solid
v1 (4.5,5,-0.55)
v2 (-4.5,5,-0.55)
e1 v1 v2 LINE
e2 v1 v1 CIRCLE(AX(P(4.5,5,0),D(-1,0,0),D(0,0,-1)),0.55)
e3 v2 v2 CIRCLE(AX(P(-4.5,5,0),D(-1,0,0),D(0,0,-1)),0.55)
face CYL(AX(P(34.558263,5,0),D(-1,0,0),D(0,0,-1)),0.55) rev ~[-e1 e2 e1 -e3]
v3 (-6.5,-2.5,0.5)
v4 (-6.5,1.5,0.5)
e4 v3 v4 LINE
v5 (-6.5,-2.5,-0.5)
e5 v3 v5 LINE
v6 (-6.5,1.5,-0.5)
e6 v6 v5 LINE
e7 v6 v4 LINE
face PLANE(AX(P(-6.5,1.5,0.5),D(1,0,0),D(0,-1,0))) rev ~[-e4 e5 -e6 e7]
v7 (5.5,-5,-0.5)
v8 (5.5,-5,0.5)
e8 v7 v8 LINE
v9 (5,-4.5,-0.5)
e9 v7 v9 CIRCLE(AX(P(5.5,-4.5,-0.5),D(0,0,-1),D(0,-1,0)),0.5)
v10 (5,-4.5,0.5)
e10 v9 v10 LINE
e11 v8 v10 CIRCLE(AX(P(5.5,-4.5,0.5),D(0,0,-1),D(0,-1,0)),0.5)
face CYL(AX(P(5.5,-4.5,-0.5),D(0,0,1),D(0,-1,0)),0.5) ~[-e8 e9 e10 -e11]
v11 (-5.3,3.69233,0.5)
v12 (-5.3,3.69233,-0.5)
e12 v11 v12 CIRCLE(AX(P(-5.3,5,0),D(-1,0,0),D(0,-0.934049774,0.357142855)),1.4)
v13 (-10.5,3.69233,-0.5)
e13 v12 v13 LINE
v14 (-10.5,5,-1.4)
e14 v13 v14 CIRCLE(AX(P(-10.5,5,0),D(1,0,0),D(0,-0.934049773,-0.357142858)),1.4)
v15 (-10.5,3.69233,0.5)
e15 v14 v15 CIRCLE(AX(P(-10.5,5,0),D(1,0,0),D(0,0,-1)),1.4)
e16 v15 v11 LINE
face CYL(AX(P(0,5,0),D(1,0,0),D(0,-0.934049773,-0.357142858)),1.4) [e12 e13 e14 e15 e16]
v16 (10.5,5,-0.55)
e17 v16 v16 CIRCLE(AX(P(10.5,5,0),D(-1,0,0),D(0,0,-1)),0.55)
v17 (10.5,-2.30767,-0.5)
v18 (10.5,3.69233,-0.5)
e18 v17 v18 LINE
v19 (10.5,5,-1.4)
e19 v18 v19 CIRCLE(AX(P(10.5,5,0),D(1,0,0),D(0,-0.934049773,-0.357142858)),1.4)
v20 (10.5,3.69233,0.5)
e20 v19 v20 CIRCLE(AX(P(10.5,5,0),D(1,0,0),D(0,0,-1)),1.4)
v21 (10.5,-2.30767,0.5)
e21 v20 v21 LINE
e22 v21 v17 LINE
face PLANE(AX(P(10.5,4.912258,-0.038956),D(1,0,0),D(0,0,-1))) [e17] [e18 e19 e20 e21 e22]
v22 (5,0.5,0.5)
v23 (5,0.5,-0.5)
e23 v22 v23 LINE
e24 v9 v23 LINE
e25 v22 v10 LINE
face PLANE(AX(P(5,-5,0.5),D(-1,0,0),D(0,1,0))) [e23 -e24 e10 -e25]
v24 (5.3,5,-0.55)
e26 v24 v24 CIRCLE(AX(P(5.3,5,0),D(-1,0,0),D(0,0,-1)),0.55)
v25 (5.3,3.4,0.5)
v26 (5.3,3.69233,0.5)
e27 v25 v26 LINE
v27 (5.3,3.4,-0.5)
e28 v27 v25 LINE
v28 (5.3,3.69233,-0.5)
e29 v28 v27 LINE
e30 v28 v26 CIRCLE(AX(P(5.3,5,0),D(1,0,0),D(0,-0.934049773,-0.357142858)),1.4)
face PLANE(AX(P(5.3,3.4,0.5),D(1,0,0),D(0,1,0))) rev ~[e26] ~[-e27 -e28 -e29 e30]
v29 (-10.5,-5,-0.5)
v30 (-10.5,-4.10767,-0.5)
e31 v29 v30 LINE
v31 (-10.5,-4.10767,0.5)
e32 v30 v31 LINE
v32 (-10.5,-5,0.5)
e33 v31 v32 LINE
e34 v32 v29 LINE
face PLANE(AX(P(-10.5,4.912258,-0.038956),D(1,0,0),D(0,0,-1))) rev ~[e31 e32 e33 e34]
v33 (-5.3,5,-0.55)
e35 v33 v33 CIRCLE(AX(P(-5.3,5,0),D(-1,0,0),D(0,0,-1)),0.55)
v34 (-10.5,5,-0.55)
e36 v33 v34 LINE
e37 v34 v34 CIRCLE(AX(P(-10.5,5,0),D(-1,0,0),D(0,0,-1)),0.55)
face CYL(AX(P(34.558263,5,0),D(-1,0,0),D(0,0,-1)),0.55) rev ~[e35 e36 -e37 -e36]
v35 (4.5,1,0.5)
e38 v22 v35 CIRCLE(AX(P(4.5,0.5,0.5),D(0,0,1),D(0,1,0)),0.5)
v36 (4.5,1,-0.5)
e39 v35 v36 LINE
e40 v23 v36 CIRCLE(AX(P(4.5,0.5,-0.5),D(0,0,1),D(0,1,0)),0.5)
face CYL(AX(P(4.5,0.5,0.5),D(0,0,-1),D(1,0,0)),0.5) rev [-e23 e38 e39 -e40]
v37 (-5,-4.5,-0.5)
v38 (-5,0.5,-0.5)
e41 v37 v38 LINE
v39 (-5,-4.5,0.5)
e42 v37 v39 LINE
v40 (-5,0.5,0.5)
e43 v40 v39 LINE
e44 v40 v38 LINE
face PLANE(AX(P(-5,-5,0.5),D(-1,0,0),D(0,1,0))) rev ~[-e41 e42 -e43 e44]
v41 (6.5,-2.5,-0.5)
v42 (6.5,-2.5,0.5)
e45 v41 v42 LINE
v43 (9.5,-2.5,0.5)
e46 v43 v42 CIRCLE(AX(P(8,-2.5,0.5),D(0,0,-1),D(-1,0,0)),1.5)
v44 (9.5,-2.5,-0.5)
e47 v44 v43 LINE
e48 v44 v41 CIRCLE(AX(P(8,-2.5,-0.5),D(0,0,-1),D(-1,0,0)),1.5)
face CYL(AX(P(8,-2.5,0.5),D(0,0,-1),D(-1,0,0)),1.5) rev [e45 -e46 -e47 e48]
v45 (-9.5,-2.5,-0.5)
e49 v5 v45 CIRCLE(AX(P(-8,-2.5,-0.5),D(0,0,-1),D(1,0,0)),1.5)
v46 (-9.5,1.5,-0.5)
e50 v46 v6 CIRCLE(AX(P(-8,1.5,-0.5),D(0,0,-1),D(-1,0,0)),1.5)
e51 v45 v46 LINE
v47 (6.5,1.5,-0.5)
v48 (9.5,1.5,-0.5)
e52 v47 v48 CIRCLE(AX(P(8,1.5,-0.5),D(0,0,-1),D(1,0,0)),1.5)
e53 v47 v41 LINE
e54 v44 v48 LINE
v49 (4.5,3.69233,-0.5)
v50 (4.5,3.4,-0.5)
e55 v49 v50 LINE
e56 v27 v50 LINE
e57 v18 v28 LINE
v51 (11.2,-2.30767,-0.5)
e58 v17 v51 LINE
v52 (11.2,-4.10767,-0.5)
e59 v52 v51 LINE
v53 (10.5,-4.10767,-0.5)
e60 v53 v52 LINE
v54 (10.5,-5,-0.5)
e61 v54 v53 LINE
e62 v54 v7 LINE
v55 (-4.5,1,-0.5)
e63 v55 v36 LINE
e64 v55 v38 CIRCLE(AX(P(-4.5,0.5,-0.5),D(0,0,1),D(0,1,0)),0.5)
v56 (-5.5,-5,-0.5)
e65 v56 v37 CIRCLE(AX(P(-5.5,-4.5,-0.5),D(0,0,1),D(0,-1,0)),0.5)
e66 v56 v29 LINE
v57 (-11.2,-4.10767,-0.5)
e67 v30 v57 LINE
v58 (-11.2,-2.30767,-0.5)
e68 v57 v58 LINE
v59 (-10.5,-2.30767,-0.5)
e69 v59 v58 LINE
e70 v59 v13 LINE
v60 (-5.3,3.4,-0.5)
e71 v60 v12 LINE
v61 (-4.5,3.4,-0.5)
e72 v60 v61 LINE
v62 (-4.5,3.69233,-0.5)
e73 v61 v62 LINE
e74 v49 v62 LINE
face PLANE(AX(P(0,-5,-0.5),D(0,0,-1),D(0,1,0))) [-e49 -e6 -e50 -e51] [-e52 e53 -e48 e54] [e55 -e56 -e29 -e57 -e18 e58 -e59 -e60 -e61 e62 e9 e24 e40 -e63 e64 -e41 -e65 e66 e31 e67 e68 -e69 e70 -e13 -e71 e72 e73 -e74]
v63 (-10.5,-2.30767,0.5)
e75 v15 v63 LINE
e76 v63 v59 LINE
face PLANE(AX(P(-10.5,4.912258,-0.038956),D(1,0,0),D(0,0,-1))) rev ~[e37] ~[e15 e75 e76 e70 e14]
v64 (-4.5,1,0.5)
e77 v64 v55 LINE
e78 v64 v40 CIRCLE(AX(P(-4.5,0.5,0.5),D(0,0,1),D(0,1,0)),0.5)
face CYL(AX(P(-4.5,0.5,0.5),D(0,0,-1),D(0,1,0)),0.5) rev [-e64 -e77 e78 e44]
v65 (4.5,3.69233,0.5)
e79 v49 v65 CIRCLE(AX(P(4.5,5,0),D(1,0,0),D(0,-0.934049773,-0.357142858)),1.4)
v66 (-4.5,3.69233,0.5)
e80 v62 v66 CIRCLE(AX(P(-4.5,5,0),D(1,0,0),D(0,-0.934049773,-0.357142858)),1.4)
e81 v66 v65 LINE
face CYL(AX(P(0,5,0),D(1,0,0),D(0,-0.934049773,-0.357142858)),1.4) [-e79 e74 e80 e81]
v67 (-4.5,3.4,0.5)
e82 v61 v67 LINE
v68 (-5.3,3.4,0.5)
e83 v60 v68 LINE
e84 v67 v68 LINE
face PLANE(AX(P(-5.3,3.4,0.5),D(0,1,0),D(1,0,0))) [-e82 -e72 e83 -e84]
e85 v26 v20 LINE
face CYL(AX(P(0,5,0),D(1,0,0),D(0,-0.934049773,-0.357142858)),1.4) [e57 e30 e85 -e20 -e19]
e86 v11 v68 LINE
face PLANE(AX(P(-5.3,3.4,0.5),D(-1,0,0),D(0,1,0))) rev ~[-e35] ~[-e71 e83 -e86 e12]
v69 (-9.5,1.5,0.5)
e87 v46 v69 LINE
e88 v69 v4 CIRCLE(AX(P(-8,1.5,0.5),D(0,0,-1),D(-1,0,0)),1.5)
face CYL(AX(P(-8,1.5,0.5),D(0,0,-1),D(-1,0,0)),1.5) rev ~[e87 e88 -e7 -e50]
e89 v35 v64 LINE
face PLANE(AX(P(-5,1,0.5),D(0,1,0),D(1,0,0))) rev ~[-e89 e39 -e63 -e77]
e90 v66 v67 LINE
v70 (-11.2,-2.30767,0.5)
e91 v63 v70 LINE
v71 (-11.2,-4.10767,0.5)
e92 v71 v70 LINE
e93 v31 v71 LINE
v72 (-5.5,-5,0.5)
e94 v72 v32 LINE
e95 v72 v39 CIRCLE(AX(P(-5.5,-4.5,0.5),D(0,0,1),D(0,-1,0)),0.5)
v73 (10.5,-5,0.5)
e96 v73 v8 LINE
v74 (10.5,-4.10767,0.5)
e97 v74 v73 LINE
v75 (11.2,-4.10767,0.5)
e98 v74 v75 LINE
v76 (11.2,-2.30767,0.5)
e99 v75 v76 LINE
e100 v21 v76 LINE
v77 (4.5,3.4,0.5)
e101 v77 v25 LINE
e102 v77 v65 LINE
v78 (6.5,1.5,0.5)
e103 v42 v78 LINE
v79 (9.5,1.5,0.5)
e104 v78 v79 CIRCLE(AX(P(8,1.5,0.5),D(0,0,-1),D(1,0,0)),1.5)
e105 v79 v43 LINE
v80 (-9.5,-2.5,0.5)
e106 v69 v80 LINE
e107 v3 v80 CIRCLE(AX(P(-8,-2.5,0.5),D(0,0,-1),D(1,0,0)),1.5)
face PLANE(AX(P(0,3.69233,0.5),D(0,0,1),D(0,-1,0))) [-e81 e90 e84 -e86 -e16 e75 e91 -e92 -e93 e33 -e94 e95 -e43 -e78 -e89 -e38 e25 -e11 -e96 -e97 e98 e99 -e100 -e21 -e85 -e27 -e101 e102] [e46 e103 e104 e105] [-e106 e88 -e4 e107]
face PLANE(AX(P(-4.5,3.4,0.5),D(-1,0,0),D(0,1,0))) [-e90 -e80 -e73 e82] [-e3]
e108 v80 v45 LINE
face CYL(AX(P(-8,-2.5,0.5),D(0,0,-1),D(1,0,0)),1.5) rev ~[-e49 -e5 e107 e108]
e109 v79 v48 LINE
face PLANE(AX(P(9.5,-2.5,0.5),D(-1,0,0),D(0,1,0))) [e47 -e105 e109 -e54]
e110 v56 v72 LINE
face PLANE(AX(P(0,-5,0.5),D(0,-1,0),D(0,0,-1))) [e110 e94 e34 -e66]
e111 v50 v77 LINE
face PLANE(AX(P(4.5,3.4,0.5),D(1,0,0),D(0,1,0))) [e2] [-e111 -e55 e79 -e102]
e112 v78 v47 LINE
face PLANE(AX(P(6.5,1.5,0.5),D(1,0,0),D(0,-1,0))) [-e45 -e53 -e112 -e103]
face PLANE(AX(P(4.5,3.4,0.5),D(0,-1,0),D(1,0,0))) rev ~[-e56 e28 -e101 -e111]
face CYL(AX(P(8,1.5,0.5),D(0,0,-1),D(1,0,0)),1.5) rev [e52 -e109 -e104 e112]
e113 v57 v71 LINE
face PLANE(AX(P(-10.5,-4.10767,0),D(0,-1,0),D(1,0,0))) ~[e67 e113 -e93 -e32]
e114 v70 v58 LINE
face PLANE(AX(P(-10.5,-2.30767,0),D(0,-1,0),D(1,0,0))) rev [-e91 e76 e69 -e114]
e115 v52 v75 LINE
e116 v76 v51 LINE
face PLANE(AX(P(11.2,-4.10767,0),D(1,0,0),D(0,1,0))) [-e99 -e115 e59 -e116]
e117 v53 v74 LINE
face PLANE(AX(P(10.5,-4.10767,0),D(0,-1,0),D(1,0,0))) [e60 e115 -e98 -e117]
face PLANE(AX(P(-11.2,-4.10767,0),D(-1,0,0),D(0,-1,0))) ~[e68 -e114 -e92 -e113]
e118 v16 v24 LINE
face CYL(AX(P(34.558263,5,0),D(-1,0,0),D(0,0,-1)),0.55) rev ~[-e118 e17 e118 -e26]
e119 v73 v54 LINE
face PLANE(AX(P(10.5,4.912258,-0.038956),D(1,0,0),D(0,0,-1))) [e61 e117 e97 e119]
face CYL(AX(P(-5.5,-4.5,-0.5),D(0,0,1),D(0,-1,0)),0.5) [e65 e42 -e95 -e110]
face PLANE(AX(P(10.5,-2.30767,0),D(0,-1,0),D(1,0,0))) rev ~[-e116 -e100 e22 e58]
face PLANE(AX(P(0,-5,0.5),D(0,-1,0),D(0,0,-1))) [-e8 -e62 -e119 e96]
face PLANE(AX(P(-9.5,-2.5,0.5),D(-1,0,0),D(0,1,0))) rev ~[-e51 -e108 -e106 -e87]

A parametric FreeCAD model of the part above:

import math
import FreeCAD as App
import Part
import Sketcher

V = App.Vector


def edges_at(feature, points):
    """Names of the edges that pass closest to the given points."""
    edges = feature.Shape.Edges
    near = lambda p: min(range(len(edges)), key=lambda i: edges[i].distToShape(Part.Vertex(*p))[0])
    return sorted({f"Edge{near(p) + 1}" for p in points})


def add_polygon(sketch, points):
    """Adds a closed chain of lines whose ends are joined by coincident constraints."""
    first, n = sketch.GeometryCount, len(points)
    for a, b in zip(points, points[1:] + points[:1]):
        sketch.addGeometry(Part.LineSegment(App.Vector(*a, 0), App.Vector(*b, 0)), False)
    for i in range(n):
        sketch.addConstraint(Sketcher.Constraint("Coincident", first + i, 2, first + (i + 1) % n, 1))

doc = App.newDocument("Part")
body = doc.addObject("PartDesign::Body", "Body")

sketch1 = body.newObject("Sketcher::SketchObject", "Sketch")
sketch1.AttachmentSupport = (doc.getObject("YZ_Plane"), [""])
sketch1.MapMode = "FlatFace"
sketch1.addGeometry(Part.ArcOfCircle(Part.Circle(V(5, 0, 0), V(0, 0, 1), 1.4), math.radians(-159), math.radians(-90)), False)
sketch1.addGeometry(Part.ArcOfCircle(Part.Circle(V(5, 0, 0), V(0, 0, 1), 1.4), math.radians(-90), math.radians(159)), False)
sketch1.addGeometry(Part.LineSegment(V(3.7, 0.5, 0), V(-5, 0.5, 0)), False)
sketch1.addGeometry(Part.LineSegment(V(-5, 0.5, 0), V(-5, -0.5, 0)), False)
sketch1.addGeometry(Part.LineSegment(V(-5, -0.5, 0), V(3.7, -0.5, 0)), False)
sketch1.addConstraint(Sketcher.Constraint("Tangent", 0, 2, 1, 1))
sketch1.addConstraint(Sketcher.Constraint("Coincident", 1, 2, 2, 1))
sketch1.addConstraint(Sketcher.Constraint("Coincident", 2, 2, 3, 1))
sketch1.addConstraint(Sketcher.Constraint("Coincident", 3, 2, 4, 1))
sketch1.addConstraint(Sketcher.Constraint("Coincident", 4, 2, 0, 1))
sketch1.addConstraint(Sketcher.Constraint("Horizontal", 2))
sketch1.addConstraint(Sketcher.Constraint("Vertical", 3))
sketch1.addConstraint(Sketcher.Constraint("Horizontal", 4))
sketch1.addConstraint(Sketcher.Constraint("Equal", 0, 1))
sketch1.addConstraint(Sketcher.Constraint("Symmetric", 1, 2, 4, 2, -1))
sketch1.addConstraint(Sketcher.Constraint("Vertical", 1, 3, 0, 2))
sketch1.addConstraint(Sketcher.Constraint("Radius", 0, 1.4))
sketch1.addConstraint(Sketcher.Constraint("DistanceY", 3, 2, 3, 1, 1.0))
sketch1.addConstraint(Sketcher.Constraint("DistanceX", -1, 1, 0, 3, 5.0))
sketch1.addConstraint(Sketcher.Constraint("DistanceX", 2, 2, -1, 1, 5.0))
pad1 = body.newObject("PartDesign::Pad", "Pad")
pad1.Profile = sketch1
pad1.Length = 21
pad1.Midplane = True

sketch2 = body.newObject("Sketcher::SketchObject", "Sketch001")
sketch2.AttachmentSupport = (doc.getObject("XY_Plane"), [""])
sketch2.MapMode = "FlatFace"
sketch2.AttachmentOffset = App.Placement(V(0, 0, 0.5), App.Rotation())
add_polygon(sketch2, [(-5, 1), (-5, -5), (5, -5), (5, 1)])
add_polygon(sketch2, [(-5.3, 6.4), (-5.3, 3.4), (-4.5, 3.4), (-4.5, 6.4)])
sketch2.addGeometry(Part.LineSegment(V(-6.5, -2.5, 0), V(-6.5, 1.5, 0)), False)
sketch2.addGeometry(Part.ArcOfCircle(Part.Circle(V(-8, 1.5, 0), V(0, 0, 1), 1.5), math.radians(0), math.radians(180)), False)
sketch2.addGeometry(Part.LineSegment(V(-9.5, 1.5, 0), V(-9.5, -2.5, 0)), False)
sketch2.addGeometry(Part.ArcOfCircle(Part.Circle(V(-8, -2.5, 0), V(0, 0, 1), 1.5), math.radians(180), math.radians(360)), False)
sketch2.addGeometry(Part.LineSegment(V(6.5, 1.5, 0), V(6.5, -2.5, 0)), False)
sketch2.addGeometry(Part.ArcOfCircle(Part.Circle(V(8, -2.5, 0), V(0, 0, 1), 1.5), math.radians(180), math.radians(360)), False)
sketch2.addGeometry(Part.LineSegment(V(9.5, -2.5, 0), V(9.5, 1.5, 0)), False)
sketch2.addGeometry(Part.ArcOfCircle(Part.Circle(V(8, 1.5, 0), V(0, 0, 1), 1.5), math.radians(0), math.radians(180)), False)
add_polygon(sketch2, [(4.5, 6.4), (4.5, 3.4), (5.3, 3.4), (5.3, 6.4)])
sketch2.addConstraint(Sketcher.Constraint("Tangent", 8, 2, 9, 1))
sketch2.addConstraint(Sketcher.Constraint("Tangent", 9, 2, 10, 1))
sketch2.addConstraint(Sketcher.Constraint("Tangent", 10, 2, 11, 1))
sketch2.addConstraint(Sketcher.Constraint("Tangent", 11, 2, 8, 1))
sketch2.addConstraint(Sketcher.Constraint("Tangent", 12, 2, 13, 1))
sketch2.addConstraint(Sketcher.Constraint("Tangent", 13, 2, 14, 1))
sketch2.addConstraint(Sketcher.Constraint("Tangent", 14, 2, 15, 1))
sketch2.addConstraint(Sketcher.Constraint("Tangent", 15, 2, 12, 1))
sketch2.addConstraint(Sketcher.Constraint("Vertical", 0))
sketch2.addConstraint(Sketcher.Constraint("Horizontal", 1))
sketch2.addConstraint(Sketcher.Constraint("Vertical", 2))
sketch2.addConstraint(Sketcher.Constraint("Horizontal", 3))
sketch2.addConstraint(Sketcher.Constraint("Vertical", 4))
sketch2.addConstraint(Sketcher.Constraint("Horizontal", 5))
sketch2.addConstraint(Sketcher.Constraint("Vertical", 6))
sketch2.addConstraint(Sketcher.Constraint("Horizontal", 7))
sketch2.addConstraint(Sketcher.Constraint("Vertical", 8))
sketch2.addConstraint(Sketcher.Constraint("Vertical", 10))
sketch2.addConstraint(Sketcher.Constraint("Vertical", 12))
sketch2.addConstraint(Sketcher.Constraint("Vertical", 14))
sketch2.addConstraint(Sketcher.Constraint("Vertical", 16))
sketch2.addConstraint(Sketcher.Constraint("Horizontal", 17))
sketch2.addConstraint(Sketcher.Constraint("Vertical", 18))
sketch2.addConstraint(Sketcher.Constraint("Horizontal", 19))
sketch2.addConstraint(Sketcher.Constraint("Equal", 11, 13))
sketch2.addConstraint(Sketcher.Constraint("Symmetric", 11, 3, 13, 3, -2))
sketch2.addConstraint(Sketcher.Constraint("Symmetric", 5, 2, 16, 2, -2))
sketch2.addConstraint(Sketcher.Constraint("Symmetric", 7, 2, 18, 2, -2))
sketch2.addConstraint(Sketcher.Constraint("Horizontal", 9, 3, 15, 3))
sketch2.addConstraint(Sketcher.Constraint("Radius", 9, 1.5))
sketch2.addConstraint(Sketcher.Constraint("DistanceX", 1, 1, 1, 2, 10.0))
sketch2.addConstraint(Sketcher.Constraint("DistanceY", 0, 2, 0, 1, 6.0))
sketch2.addConstraint(Sketcher.Constraint("DistanceY", 4, 2, 4, 1, 3.0))
sketch2.addConstraint(Sketcher.Constraint("DistanceY", 8, 1, 8, 2, 4.0))
sketch2.addConstraint(Sketcher.Constraint("DistanceX", 5, 1, 5, 2, 0.8))
sketch2.addConstraint(Sketcher.Constraint("DistanceX", 9, 3, -1, 1, 8.0))
sketch2.addConstraint(Sketcher.Constraint("DistanceX", 0, 2, -1, 1, 5.0))
sketch2.addConstraint(Sketcher.Constraint("DistanceY", 0, 2, -1, 1, 5.0))
sketch2.addConstraint(Sketcher.Constraint("DistanceX", 8, 2, 5, 2, 2.0))
sketch2.addConstraint(Sketcher.Constraint("DistanceY", -1, 1, 9, 3, 1.5))
sketch2.addConstraint(Sketcher.Constraint("DistanceY", -1, 1, 4, 2, 3.4))
pocket1 = body.newObject("PartDesign::Pocket", "Pocket")
pocket1.Profile = sketch2
pocket1.Length = 21
pocket1.Midplane = True

sketch3 = body.newObject("Sketcher::SketchObject", "Sketch002")
sketch3.AttachmentSupport = (doc.getObject("YZ_Plane"), [""])
sketch3.MapMode = "FlatFace"
sketch3.AttachmentOffset = App.Placement(V(0, 0, 10.5), App.Rotation())
sketch3.addGeometry(Part.Circle(V(5, 0, 0), V(0, 0, 1), 0.6), False)
sketch3.addConstraint(Sketcher.Constraint("PointOnObject", 0, 3, -1))
sketch3.addConstraint(Sketcher.Constraint("Diameter", 0, 1.1))
sketch3.addConstraint(Sketcher.Constraint("DistanceX", -1, 1, 0, 3, 5.0))
doc.recompute()
hole = body.newObject("PartDesign::Hole", "Hole")
hole.Profile = sketch3
hole.ThreadType = "None"
hole.Diameter = 1.1
hole.DepthType = "ThroughAll"

sketch4 = body.newObject("Sketcher::SketchObject", "Sketch003")
sketch4.AttachmentSupport = (doc.getObject("XY_Plane"), [""])
sketch4.MapMode = "FlatFace"
add_polygon(sketch4, [(10.5, -2.3), (10.5, -4.1), (11.2, -4.1), (11.2, -2.3)])
sketch4.addConstraint(Sketcher.Constraint("Vertical", 0))
sketch4.addConstraint(Sketcher.Constraint("Horizontal", 1))
sketch4.addConstraint(Sketcher.Constraint("Vertical", 2))
sketch4.addConstraint(Sketcher.Constraint("Horizontal", 3))
sketch4.addConstraint(Sketcher.Constraint("DistanceX", 1, 1, 1, 2, 0.7))
sketch4.addConstraint(Sketcher.Constraint("DistanceY", 0, 2, 0, 1, 1.8))
sketch4.addConstraint(Sketcher.Constraint("DistanceX", -1, 1, 0, 2, 10.5))
sketch4.addConstraint(Sketcher.Constraint("DistanceY", 0, 2, -1, 1, 4.10767))
pad2 = body.newObject("PartDesign::Pad", "Pad001")
pad2.Profile = sketch4
pad2.Length = 1
pad2.Midplane = True
doc.recompute()

mirrored = body.newObject("PartDesign::Mirrored", "Mirrored")
mirrored.Originals = [pad2]
mirrored.MirrorPlane = (doc.getObject("YZ_Plane"), [""])
body.Tip = mirrored
doc.recompute()

fillet = body.newObject("PartDesign::Fillet", "Fillet")
fillet.Base = (mirrored, edges_at(mirrored, [
    (-5, -5, 0),
    (-5, 1, 0),
    (5, 1, 0),
    (5, -5, 0),
]))
fillet.Radius = 0.5

doc.recompute()
